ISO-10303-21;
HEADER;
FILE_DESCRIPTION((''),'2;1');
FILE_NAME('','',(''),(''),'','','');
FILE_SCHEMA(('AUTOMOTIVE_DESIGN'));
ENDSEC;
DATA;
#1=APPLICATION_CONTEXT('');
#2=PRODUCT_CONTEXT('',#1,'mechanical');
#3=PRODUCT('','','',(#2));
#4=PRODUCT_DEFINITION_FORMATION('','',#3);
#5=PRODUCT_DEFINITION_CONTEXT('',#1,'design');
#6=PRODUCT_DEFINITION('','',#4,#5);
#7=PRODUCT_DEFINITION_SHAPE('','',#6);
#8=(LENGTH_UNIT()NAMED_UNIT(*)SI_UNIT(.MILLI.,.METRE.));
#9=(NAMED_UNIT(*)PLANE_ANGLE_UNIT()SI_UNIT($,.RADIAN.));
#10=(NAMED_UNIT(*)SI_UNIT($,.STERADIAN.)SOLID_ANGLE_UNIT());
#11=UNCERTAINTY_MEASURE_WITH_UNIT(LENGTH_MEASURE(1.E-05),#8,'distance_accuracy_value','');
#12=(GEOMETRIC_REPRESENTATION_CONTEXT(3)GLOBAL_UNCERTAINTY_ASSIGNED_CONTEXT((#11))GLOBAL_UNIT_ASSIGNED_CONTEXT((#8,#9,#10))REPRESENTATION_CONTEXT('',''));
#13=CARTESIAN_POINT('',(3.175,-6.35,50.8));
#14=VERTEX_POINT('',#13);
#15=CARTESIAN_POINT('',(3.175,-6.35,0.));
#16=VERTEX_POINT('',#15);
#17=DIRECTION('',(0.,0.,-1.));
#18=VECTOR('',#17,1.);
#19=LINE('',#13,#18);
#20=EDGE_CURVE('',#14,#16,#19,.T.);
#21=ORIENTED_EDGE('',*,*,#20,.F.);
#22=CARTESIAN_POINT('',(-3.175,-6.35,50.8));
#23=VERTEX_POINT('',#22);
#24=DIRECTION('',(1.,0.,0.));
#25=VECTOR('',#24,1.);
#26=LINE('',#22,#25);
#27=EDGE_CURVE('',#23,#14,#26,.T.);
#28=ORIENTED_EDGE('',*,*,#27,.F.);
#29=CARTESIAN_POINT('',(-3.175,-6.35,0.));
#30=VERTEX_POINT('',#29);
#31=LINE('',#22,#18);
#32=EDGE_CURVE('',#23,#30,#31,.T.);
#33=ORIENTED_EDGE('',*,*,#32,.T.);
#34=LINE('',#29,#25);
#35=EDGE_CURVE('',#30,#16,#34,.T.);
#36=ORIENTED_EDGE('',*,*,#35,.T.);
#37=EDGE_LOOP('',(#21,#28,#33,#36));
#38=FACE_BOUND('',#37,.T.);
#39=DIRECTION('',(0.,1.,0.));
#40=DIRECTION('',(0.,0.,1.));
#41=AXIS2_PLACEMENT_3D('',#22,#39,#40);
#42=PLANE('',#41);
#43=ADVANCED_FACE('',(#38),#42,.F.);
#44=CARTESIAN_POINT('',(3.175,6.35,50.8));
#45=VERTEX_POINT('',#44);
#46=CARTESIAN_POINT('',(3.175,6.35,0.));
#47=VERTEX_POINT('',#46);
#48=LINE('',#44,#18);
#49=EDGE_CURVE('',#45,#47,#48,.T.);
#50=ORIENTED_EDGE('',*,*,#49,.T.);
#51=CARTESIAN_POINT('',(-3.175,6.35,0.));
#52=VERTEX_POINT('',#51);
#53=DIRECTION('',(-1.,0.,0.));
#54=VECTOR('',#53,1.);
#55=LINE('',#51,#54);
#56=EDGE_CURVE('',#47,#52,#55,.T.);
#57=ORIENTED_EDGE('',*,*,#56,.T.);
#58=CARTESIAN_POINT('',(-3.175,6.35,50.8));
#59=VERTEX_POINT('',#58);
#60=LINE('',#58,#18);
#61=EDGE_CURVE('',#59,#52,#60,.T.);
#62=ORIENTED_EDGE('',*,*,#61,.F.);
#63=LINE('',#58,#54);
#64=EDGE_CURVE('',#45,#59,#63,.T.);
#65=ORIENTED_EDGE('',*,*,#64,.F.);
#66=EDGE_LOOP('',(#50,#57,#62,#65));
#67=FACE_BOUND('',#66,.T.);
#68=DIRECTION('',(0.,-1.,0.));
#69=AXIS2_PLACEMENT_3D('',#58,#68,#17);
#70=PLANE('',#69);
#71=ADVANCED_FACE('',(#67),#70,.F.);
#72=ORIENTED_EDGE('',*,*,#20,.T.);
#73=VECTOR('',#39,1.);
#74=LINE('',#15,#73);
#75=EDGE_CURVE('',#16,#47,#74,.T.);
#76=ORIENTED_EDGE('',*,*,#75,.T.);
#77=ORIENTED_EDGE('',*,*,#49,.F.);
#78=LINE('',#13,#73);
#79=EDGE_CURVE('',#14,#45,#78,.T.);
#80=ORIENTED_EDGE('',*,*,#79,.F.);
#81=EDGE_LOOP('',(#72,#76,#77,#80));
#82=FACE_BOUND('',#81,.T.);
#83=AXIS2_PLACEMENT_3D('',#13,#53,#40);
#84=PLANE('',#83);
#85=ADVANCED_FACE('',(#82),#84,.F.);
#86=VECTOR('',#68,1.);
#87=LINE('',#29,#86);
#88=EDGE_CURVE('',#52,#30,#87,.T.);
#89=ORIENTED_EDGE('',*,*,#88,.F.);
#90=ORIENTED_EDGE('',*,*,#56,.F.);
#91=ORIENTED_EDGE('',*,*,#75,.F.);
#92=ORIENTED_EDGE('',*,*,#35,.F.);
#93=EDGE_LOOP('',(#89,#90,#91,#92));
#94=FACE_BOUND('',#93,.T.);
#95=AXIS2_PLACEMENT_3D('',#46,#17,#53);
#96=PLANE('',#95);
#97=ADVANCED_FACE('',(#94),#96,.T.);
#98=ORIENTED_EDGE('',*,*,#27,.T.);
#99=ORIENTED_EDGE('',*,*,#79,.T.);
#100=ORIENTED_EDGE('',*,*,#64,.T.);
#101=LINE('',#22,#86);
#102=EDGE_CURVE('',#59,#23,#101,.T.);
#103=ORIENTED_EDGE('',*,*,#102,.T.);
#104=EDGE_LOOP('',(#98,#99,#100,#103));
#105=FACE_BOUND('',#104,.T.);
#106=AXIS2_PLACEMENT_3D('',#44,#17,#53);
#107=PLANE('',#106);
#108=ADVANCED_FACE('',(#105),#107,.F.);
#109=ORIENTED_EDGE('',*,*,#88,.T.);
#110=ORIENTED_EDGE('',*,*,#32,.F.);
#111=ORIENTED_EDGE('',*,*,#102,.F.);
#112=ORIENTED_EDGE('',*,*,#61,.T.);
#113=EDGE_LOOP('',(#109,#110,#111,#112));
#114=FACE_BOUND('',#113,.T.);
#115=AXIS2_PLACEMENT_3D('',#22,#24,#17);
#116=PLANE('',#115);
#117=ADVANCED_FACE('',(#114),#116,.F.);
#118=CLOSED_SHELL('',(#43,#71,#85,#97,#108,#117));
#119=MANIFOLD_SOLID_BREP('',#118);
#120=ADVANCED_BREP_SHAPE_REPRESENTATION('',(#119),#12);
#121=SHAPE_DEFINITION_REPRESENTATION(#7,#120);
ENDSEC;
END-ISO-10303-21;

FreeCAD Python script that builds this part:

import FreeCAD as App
import Part
import Sketcher

V = App.Vector
Q = App.Units.Quantity


def add_polygon(sketch, points):
    """Adds a closed chain of lines whose ends are joined by coincident constraints."""
    first, n = sketch.GeometryCount, len(points)
    for a, b in zip(points, points[1:] + points[:1]):
        sketch.addGeometry(Part.LineSegment(App.Vector(*a, 0), App.Vector(*b, 0)), False)
    for i in range(n):
        sketch.addConstraint(Sketcher.Constraint("Coincident", first + i, 2, first + (i + 1) % n, 1))

doc = App.newDocument("Part")
body = doc.addObject("PartDesign::Body", "Body")

# Sketch on XY plane
sketch1 = doc.addObject("Sketcher::SketchObject", "Sketch")
body.addObject(sketch1)
sketch1.AttachmentSupport = (doc.XY_Plane, [""])
sketch1.MapMode = "FlatFace"
add_polygon(sketch1, [(-3.175, 6.35), (-3.175, -6.35), (3.175, -6.35), (3.175, 6.35)])  # lines 0-3
sketch1.addConstraint([
    Sketcher.Constraint("Vertical", 0),
    Sketcher.Constraint("Horizontal", 1),
    Sketcher.Constraint("Vertical", 2),
    Sketcher.Constraint("Horizontal", 3),
    Sketcher.Constraint("Symmetric", 0, 2, 2, 2, -1, 1),
    Sketcher.Constraint("DistanceY", 0, 2, 0, 1, Q("0.5 in")),
    Sketcher.Constraint("DistanceX", 1, 1, 1, 2, Q("0.25 in")),
])
pad1 = doc.addObject("PartDesign::Pad", "Pad")
body.addObject(pad1)
pad1.Profile = sketch1
pad1.Length = Q("2 in")

doc.recompute()
